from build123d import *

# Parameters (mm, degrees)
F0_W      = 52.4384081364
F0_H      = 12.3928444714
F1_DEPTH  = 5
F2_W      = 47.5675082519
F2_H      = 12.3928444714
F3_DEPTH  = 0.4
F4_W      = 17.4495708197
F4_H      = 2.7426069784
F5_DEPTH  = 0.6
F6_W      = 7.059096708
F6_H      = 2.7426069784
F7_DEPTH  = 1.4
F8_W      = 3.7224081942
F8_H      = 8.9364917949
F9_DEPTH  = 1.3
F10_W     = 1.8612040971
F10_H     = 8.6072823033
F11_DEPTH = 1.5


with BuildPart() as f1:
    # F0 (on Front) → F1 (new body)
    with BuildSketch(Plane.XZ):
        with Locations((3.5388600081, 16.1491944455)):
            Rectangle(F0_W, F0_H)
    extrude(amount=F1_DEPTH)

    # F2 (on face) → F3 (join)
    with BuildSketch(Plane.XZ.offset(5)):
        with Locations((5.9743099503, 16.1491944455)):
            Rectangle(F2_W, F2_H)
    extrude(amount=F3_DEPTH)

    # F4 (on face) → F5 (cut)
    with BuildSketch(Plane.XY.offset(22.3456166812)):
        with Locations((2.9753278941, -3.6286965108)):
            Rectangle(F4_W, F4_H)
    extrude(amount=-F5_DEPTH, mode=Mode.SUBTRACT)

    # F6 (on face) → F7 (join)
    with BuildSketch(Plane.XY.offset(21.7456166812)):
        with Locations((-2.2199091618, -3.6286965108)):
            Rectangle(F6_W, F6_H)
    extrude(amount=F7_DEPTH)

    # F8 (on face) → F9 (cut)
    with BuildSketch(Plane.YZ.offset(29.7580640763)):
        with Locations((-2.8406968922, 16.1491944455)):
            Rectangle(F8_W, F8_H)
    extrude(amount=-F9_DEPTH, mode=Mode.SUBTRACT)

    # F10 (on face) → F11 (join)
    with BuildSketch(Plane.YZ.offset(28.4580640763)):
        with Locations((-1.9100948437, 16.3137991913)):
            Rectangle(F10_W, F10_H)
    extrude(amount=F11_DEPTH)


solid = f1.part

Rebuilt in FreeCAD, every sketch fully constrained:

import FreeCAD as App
import Part
import Sketcher

V = App.Vector
Q = App.Units.Quantity

doc = App.newDocument("Part")
body = doc.addObject("PartDesign::Body", "Body")

sketch1 = body.newObject("Sketcher::SketchObject", "Sketch")
sketch1.AttachmentSupport = (doc.getObject("XZ_Plane"), [""])
sketch1.MapMode = "FlatFace"
sketch1.addGeometry([
    Part.LineSegment(V(-22.680344, 22.345617, 0), V(-22.680344, 9.952772, 0)),
    Part.LineSegment(V(-22.680344, 9.952772, 0), V(29.758064, 9.952772, 0)),
    Part.LineSegment(V(29.758064, 9.952772, 0), V(29.758064, 22.345617, 0)),
    Part.LineSegment(V(29.758064, 22.345617, 0), V(-22.680344, 22.345617, 0)),
], False)
sketch1.addConstraint([
    Sketcher.Constraint("Coincident", 0, 2, 1, 1),
    Sketcher.Constraint("Coincident", 1, 2, 2, 1),
    Sketcher.Constraint("Coincident", 2, 2, 3, 1),
    Sketcher.Constraint("Coincident", 3, 2, 0, 1),
    Sketcher.Constraint("Vertical", 0),
    Sketcher.Constraint("Horizontal", 1),
    Sketcher.Constraint("Vertical", 2),
    Sketcher.Constraint("Horizontal", 3),
    Sketcher.Constraint("DistanceX", 1, 1, 1, 2, Q("52.438408 mm")),
    Sketcher.Constraint("DistanceY", 0, 2, 0, 1, Q("12.392844 mm")),
    Sketcher.Constraint("DistanceX", 0, 2, -1, 1, Q("22.680344 mm")),
    Sketcher.Constraint("DistanceY", -1, 1, 0, 2, Q("9.952772 mm")),
])
pad1 = body.newObject("PartDesign::Pad", "Pad")
pad1.Profile = sketch1
pad1.Length = 5

sketch2 = body.newObject("Sketcher::SketchObject", "Sketch001")
sketch2.AttachmentSupport = (doc.getObject("XZ_Plane"), [""])
sketch2.MapMode = "FlatFace"
sketch2.AttachmentOffset = App.Placement(V(0, 0, 5), App.Rotation())
sketch2.addGeometry([
    Part.LineSegment(V(-17.809444, 22.345617, 0), V(-17.809444, 9.952772, 0)),
    Part.LineSegment(V(-17.809444, 9.952772, 0), V(29.758064, 9.952772, 0)),
    Part.LineSegment(V(29.758064, 9.952772, 0), V(29.758064, 22.345617, 0)),
    Part.LineSegment(V(29.758064, 22.345617, 0), V(-17.809444, 22.345617, 0)),
], False)
sketch2.addConstraint([
    Sketcher.Constraint("Coincident", 0, 2, 1, 1),
    Sketcher.Constraint("Coincident", 1, 2, 2, 1),
    Sketcher.Constraint("Coincident", 2, 2, 3, 1),
    Sketcher.Constraint("Coincident", 3, 2, 0, 1),
    Sketcher.Constraint("Vertical", 0),
    Sketcher.Constraint("Horizontal", 1),
    Sketcher.Constraint("Vertical", 2),
    Sketcher.Constraint("Horizontal", 3),
    Sketcher.Constraint("DistanceX", 1, 1, 1, 2, Q("47.567508 mm")),
    Sketcher.Constraint("DistanceY", 0, 2, 0, 1, Q("12.392844 mm")),
    Sketcher.Constraint("DistanceX", 0, 2, -1, 1, Q("17.809444 mm")),
    Sketcher.Constraint("DistanceY", -1, 1, 0, 2, Q("9.952772 mm")),
])
pad2 = body.newObject("PartDesign::Pad", "Pad001")
pad2.Profile = sketch2
pad2.Length = 0.4

sketch3 = body.newObject("Sketcher::SketchObject", "Sketch002")
sketch3.AttachmentSupport = (doc.getObject("XY_Plane"), [""])
sketch3.MapMode = "FlatFace"
sketch3.AttachmentOffset = App.Placement(V(0, 0, 22.345617), App.Rotation())
sketch3.addGeometry([
    Part.LineSegment(V(-5.749458, -2.257393, 0), V(-5.749458, -5, 0)),
    Part.LineSegment(V(-5.749458, -5, 0), V(11.700113, -5, 0)),
    Part.LineSegment(V(11.700113, -5, 0), V(11.700113, -2.257393, 0)),
    Part.LineSegment(V(11.700113, -2.257393, 0), V(-5.749458, -2.257393, 0)),
], False)
sketch3.addConstraint([
    Sketcher.Constraint("Coincident", 0, 2, 1, 1),
    Sketcher.Constraint("Coincident", 1, 2, 2, 1),
    Sketcher.Constraint("Coincident", 2, 2, 3, 1),
    Sketcher.Constraint("Coincident", 3, 2, 0, 1),
    Sketcher.Constraint("Vertical", 0),
    Sketcher.Constraint("Horizontal", 1),
    Sketcher.Constraint("Vertical", 2),
    Sketcher.Constraint("Horizontal", 3),
    Sketcher.Constraint("DistanceY", 0, 2, -1, 1, Q("5 mm")),
    Sketcher.Constraint("DistanceX", 1, 1, 1, 2, Q("17.449571 mm")),
    Sketcher.Constraint("DistanceY", 0, 2, 0, 1, Q("2.742607 mm")),
    Sketcher.Constraint("DistanceX", 0, 2, -1, 1, Q("5.749458 mm")),
])
pocket1 = body.newObject("PartDesign::Pocket", "Pocket")
pocket1.Profile = sketch3
pocket1.Length = 0.6

sketch4 = body.newObject("Sketcher::SketchObject", "Sketch003")
sketch4.AttachmentSupport = (doc.getObject("XY_Plane"), [""])
sketch4.MapMode = "FlatFace"
sketch4.AttachmentOffset = App.Placement(V(0, 0, 21.745617), App.Rotation())
sketch4.addGeometry([
    Part.LineSegment(V(-5.749458, -2.257393, 0), V(-5.749458, -5, 0)),
    Part.LineSegment(V(-5.749458, -5, 0), V(1.309639, -5, 0)),
    Part.LineSegment(V(1.309639, -5, 0), V(1.309639, -2.257393, 0)),
    Part.LineSegment(V(1.309639, -2.257393, 0), V(-5.749458, -2.257393, 0)),
], False)
sketch4.addConstraint([
    Sketcher.Constraint("Coincident", 0, 2, 1, 1),
    Sketcher.Constraint("Coincident", 1, 2, 2, 1),
    Sketcher.Constraint("Coincident", 2, 2, 3, 1),
    Sketcher.Constraint("Coincident", 3, 2, 0, 1),
    Sketcher.Constraint("Vertical", 0),
    Sketcher.Constraint("Horizontal", 1),
    Sketcher.Constraint("Vertical", 2),
    Sketcher.Constraint("Horizontal", 3),
    Sketcher.Constraint("DistanceY", 0, 2, -1, 1, Q("5 mm")),
    Sketcher.Constraint("DistanceX", 1, 1, 1, 2, Q("7.059097 mm")),
    Sketcher.Constraint("DistanceY", 0, 2, 0, 1, Q("2.742607 mm")),
    Sketcher.Constraint("DistanceX", -1, 1, 1, 2, Q("1.309639 mm")),
])
pad3 = body.newObject("PartDesign::Pad", "Pad002")
pad3.Profile = sketch4
pad3.Length = 1.4

sketch5 = body.newObject("Sketcher::SketchObject", "Sketch004")
sketch5.AttachmentSupport = (doc.getObject("YZ_Plane"), [""])
sketch5.MapMode = "FlatFace"
sketch5.AttachmentOffset = App.Placement(V(0, 0, 29.758064), App.Rotation())
sketch5.addGeometry([
    Part.LineSegment(V(-4.701901, 20.61744, 0), V(-4.701901, 11.680949, 0)),
    Part.LineSegment(V(-4.701901, 11.680949, 0), V(-0.979493, 11.680949, 0)),
    Part.LineSegment(V(-0.979493, 11.680949, 0), V(-0.979493, 20.61744, 0)),
    Part.LineSegment(V(-0.979493, 20.61744, 0), V(-4.701901, 20.61744, 0)),
], False)
sketch5.addConstraint([
    Sketcher.Constraint("Coincident", 0, 2, 1, 1),
    Sketcher.Constraint("Coincident", 1, 2, 2, 1),
    Sketcher.Constraint("Coincident", 2, 2, 3, 1),
    Sketcher.Constraint("Coincident", 3, 2, 0, 1),
    Sketcher.Constraint("Vertical", 0),
    Sketcher.Constraint("Horizontal", 1),
    Sketcher.Constraint("Vertical", 2),
    Sketcher.Constraint("Horizontal", 3),
    Sketcher.Constraint("DistanceX", 1, 1, 1, 2, Q("3.722408 mm")),
    Sketcher.Constraint("DistanceY", 0, 2, 0, 1, Q("8.936492 mm")),
    Sketcher.Constraint("DistanceX", 0, 2, -1, 1, Q("4.701901 mm")),
    Sketcher.Constraint("DistanceY", -1, 1, 0, 2, Q("11.680949 mm")),
])
pocket2 = body.newObject("PartDesign::Pocket", "Pocket001")
pocket2.Profile = sketch5
pocket2.Length = 1.3

sketch6 = body.newObject("Sketcher::SketchObject", "Sketch005")
sketch6.AttachmentSupport = (doc.getObject("YZ_Plane"), [""])
sketch6.MapMode = "FlatFace"
sketch6.AttachmentOffset = App.Placement(V(0, 0, 28.458064), App.Rotation())
sketch6.addGeometry([
    Part.LineSegment(V(-2.840697, 20.61744, 0), V(-2.840697, 12.010158, 0)),
    Part.LineSegment(V(-2.840697, 12.010158, 0), V(-0.979493, 12.010158, 0)),
    Part.LineSegment(V(-0.979493, 12.010158, 0), V(-0.979493, 20.61744, 0)),
    Part.LineSegment(V(-0.979493, 20.61744, 0), V(-2.840697, 20.61744, 0)),
], False)
sketch6.addConstraint([
    Sketcher.Constraint("Coincident", 0, 2, 1, 1),
    Sketcher.Constraint("Coincident", 1, 2, 2, 1),
    Sketcher.Constraint("Coincident", 2, 2, 3, 1),
    Sketcher.Constraint("Coincident", 3, 2, 0, 1),
    Sketcher.Constraint("Vertical", 0),
    Sketcher.Constraint("Horizontal", 1),
    Sketcher.Constraint("Vertical", 2),
    Sketcher.Constraint("Horizontal", 3),
    Sketcher.Constraint("DistanceX", 1, 1, 1, 2, Q("1.861204 mm")),
    Sketcher.Constraint("DistanceY", 0, 2, 0, 1, Q("8.607282 mm")),
    Sketcher.Constraint("DistanceY", -1, 1, 0, 2, Q("12.010158 mm")),
    Sketcher.Constraint("DistanceX", 0, 2, -1, 1, Q("2.840697 mm")),
])
pad4 = body.newObject("PartDesign::Pad", "Pad003")
pad4.Profile = sketch6
pad4.Length = 1.5

doc.recompute()
